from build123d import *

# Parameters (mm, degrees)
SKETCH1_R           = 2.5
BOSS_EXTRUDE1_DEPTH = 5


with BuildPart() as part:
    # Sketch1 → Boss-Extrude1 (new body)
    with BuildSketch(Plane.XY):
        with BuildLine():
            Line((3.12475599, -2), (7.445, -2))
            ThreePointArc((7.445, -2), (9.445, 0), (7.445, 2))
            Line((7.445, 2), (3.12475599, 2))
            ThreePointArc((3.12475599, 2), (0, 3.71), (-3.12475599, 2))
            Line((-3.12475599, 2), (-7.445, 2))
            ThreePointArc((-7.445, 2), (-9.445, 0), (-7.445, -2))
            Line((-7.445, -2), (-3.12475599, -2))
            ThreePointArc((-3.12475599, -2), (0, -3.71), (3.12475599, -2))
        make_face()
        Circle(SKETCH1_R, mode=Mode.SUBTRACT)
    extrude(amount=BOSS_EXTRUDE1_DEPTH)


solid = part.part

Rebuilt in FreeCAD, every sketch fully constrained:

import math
import FreeCAD as App
import Part
import Sketcher

doc = App.newDocument("Part")
body = doc.addObject("PartDesign::Body", "Body")

# Sketch on XY plane
sketch1 = body.newObject("Sketcher::SketchObject", "Sketch")
sketch1.AttachmentSupport = (doc.getObject("XY_Plane"), [""])
sketch1.MapMode = "FlatFace"
sketch1.addGeometry([
    Part.LineSegment(App.Vector(3.1, -2, 0), App.Vector(7.4, -2, 0)),  # 0
    Part.ArcOfCircle(Part.Circle(App.Vector(7.4, 0, 0), App.Vector(0, 0, 1), 2), math.radians(-90), math.radians(90)),  # 1
    Part.LineSegment(App.Vector(7.4, 2, 0), App.Vector(3.1, 2, 0)),  # 2
    Part.ArcOfCircle(Part.Circle(App.Vector(0, 0, 0), App.Vector(0, 0, 1), 3.7), math.radians(33), math.radians(147)),  # 3
    Part.LineSegment(App.Vector(-3.1, 2, 0), App.Vector(-7.4, 2, 0)),  # 4
    Part.ArcOfCircle(Part.Circle(App.Vector(-7.4, 0, 0), App.Vector(0, 0, 1), 2), math.radians(90), math.radians(270)),  # 5
    Part.LineSegment(App.Vector(-7.4, -2, 0), App.Vector(-3.1, -2, 0)),  # 6
    Part.ArcOfCircle(Part.Circle(App.Vector(0, 0, 0), App.Vector(0, 0, 1), 3.7), math.radians(-147), math.radians(-33)),  # 7
    Part.Circle(App.Vector(0, 0, 0), App.Vector(0, 0, 1), 2.5),  # 8
], False)
sketch1.addConstraint([
    Sketcher.Constraint("Tangent", 0, 2, 1, 1),
    Sketcher.Constraint("Tangent", 1, 2, 2, 1),
    Sketcher.Constraint("Coincident", 2, 2, 3, 1),
    Sketcher.Constraint("Coincident", 3, 2, 4, 1),
    Sketcher.Constraint("Tangent", 4, 2, 5, 1),
    Sketcher.Constraint("Tangent", 5, 2, 6, 1),
    Sketcher.Constraint("Coincident", 6, 2, 7, 1),
    Sketcher.Constraint("Coincident", 7, 2, 0, 1),
    Sketcher.Constraint("Horizontal", 0),
    Sketcher.Constraint("Horizontal", 2),
    Sketcher.Constraint("Horizontal", 4),
    Sketcher.Constraint("Horizontal", 6),
    Sketcher.Constraint("Coincident", 3, 3, -1, 1),
    Sketcher.Constraint("Coincident", 7, 3, -1, 1),
    Sketcher.Constraint("Coincident", 8, 3, -1, 1),
    Sketcher.Constraint("Equal", 1, 5),
    Sketcher.Constraint("Equal", 3, 7),
    Sketcher.Constraint("Symmetric", 1, 3, 5, 3, -1, 1),
    Sketcher.Constraint("PointOnObject", 1, 3, -1),
    Sketcher.Constraint("Diameter", 8, 5.0),
    Sketcher.Constraint("Radius", 1, 2.0),
    Sketcher.Constraint("Radius", 3, 3.71),
    Sketcher.Constraint("DistanceX", 5, 3, 1, 3, 14.89),
])
pad1 = body.newObject("PartDesign::Pad", "Pad")
pad1.Profile = sketch1
pad1.Length = 5

doc.recompute()
